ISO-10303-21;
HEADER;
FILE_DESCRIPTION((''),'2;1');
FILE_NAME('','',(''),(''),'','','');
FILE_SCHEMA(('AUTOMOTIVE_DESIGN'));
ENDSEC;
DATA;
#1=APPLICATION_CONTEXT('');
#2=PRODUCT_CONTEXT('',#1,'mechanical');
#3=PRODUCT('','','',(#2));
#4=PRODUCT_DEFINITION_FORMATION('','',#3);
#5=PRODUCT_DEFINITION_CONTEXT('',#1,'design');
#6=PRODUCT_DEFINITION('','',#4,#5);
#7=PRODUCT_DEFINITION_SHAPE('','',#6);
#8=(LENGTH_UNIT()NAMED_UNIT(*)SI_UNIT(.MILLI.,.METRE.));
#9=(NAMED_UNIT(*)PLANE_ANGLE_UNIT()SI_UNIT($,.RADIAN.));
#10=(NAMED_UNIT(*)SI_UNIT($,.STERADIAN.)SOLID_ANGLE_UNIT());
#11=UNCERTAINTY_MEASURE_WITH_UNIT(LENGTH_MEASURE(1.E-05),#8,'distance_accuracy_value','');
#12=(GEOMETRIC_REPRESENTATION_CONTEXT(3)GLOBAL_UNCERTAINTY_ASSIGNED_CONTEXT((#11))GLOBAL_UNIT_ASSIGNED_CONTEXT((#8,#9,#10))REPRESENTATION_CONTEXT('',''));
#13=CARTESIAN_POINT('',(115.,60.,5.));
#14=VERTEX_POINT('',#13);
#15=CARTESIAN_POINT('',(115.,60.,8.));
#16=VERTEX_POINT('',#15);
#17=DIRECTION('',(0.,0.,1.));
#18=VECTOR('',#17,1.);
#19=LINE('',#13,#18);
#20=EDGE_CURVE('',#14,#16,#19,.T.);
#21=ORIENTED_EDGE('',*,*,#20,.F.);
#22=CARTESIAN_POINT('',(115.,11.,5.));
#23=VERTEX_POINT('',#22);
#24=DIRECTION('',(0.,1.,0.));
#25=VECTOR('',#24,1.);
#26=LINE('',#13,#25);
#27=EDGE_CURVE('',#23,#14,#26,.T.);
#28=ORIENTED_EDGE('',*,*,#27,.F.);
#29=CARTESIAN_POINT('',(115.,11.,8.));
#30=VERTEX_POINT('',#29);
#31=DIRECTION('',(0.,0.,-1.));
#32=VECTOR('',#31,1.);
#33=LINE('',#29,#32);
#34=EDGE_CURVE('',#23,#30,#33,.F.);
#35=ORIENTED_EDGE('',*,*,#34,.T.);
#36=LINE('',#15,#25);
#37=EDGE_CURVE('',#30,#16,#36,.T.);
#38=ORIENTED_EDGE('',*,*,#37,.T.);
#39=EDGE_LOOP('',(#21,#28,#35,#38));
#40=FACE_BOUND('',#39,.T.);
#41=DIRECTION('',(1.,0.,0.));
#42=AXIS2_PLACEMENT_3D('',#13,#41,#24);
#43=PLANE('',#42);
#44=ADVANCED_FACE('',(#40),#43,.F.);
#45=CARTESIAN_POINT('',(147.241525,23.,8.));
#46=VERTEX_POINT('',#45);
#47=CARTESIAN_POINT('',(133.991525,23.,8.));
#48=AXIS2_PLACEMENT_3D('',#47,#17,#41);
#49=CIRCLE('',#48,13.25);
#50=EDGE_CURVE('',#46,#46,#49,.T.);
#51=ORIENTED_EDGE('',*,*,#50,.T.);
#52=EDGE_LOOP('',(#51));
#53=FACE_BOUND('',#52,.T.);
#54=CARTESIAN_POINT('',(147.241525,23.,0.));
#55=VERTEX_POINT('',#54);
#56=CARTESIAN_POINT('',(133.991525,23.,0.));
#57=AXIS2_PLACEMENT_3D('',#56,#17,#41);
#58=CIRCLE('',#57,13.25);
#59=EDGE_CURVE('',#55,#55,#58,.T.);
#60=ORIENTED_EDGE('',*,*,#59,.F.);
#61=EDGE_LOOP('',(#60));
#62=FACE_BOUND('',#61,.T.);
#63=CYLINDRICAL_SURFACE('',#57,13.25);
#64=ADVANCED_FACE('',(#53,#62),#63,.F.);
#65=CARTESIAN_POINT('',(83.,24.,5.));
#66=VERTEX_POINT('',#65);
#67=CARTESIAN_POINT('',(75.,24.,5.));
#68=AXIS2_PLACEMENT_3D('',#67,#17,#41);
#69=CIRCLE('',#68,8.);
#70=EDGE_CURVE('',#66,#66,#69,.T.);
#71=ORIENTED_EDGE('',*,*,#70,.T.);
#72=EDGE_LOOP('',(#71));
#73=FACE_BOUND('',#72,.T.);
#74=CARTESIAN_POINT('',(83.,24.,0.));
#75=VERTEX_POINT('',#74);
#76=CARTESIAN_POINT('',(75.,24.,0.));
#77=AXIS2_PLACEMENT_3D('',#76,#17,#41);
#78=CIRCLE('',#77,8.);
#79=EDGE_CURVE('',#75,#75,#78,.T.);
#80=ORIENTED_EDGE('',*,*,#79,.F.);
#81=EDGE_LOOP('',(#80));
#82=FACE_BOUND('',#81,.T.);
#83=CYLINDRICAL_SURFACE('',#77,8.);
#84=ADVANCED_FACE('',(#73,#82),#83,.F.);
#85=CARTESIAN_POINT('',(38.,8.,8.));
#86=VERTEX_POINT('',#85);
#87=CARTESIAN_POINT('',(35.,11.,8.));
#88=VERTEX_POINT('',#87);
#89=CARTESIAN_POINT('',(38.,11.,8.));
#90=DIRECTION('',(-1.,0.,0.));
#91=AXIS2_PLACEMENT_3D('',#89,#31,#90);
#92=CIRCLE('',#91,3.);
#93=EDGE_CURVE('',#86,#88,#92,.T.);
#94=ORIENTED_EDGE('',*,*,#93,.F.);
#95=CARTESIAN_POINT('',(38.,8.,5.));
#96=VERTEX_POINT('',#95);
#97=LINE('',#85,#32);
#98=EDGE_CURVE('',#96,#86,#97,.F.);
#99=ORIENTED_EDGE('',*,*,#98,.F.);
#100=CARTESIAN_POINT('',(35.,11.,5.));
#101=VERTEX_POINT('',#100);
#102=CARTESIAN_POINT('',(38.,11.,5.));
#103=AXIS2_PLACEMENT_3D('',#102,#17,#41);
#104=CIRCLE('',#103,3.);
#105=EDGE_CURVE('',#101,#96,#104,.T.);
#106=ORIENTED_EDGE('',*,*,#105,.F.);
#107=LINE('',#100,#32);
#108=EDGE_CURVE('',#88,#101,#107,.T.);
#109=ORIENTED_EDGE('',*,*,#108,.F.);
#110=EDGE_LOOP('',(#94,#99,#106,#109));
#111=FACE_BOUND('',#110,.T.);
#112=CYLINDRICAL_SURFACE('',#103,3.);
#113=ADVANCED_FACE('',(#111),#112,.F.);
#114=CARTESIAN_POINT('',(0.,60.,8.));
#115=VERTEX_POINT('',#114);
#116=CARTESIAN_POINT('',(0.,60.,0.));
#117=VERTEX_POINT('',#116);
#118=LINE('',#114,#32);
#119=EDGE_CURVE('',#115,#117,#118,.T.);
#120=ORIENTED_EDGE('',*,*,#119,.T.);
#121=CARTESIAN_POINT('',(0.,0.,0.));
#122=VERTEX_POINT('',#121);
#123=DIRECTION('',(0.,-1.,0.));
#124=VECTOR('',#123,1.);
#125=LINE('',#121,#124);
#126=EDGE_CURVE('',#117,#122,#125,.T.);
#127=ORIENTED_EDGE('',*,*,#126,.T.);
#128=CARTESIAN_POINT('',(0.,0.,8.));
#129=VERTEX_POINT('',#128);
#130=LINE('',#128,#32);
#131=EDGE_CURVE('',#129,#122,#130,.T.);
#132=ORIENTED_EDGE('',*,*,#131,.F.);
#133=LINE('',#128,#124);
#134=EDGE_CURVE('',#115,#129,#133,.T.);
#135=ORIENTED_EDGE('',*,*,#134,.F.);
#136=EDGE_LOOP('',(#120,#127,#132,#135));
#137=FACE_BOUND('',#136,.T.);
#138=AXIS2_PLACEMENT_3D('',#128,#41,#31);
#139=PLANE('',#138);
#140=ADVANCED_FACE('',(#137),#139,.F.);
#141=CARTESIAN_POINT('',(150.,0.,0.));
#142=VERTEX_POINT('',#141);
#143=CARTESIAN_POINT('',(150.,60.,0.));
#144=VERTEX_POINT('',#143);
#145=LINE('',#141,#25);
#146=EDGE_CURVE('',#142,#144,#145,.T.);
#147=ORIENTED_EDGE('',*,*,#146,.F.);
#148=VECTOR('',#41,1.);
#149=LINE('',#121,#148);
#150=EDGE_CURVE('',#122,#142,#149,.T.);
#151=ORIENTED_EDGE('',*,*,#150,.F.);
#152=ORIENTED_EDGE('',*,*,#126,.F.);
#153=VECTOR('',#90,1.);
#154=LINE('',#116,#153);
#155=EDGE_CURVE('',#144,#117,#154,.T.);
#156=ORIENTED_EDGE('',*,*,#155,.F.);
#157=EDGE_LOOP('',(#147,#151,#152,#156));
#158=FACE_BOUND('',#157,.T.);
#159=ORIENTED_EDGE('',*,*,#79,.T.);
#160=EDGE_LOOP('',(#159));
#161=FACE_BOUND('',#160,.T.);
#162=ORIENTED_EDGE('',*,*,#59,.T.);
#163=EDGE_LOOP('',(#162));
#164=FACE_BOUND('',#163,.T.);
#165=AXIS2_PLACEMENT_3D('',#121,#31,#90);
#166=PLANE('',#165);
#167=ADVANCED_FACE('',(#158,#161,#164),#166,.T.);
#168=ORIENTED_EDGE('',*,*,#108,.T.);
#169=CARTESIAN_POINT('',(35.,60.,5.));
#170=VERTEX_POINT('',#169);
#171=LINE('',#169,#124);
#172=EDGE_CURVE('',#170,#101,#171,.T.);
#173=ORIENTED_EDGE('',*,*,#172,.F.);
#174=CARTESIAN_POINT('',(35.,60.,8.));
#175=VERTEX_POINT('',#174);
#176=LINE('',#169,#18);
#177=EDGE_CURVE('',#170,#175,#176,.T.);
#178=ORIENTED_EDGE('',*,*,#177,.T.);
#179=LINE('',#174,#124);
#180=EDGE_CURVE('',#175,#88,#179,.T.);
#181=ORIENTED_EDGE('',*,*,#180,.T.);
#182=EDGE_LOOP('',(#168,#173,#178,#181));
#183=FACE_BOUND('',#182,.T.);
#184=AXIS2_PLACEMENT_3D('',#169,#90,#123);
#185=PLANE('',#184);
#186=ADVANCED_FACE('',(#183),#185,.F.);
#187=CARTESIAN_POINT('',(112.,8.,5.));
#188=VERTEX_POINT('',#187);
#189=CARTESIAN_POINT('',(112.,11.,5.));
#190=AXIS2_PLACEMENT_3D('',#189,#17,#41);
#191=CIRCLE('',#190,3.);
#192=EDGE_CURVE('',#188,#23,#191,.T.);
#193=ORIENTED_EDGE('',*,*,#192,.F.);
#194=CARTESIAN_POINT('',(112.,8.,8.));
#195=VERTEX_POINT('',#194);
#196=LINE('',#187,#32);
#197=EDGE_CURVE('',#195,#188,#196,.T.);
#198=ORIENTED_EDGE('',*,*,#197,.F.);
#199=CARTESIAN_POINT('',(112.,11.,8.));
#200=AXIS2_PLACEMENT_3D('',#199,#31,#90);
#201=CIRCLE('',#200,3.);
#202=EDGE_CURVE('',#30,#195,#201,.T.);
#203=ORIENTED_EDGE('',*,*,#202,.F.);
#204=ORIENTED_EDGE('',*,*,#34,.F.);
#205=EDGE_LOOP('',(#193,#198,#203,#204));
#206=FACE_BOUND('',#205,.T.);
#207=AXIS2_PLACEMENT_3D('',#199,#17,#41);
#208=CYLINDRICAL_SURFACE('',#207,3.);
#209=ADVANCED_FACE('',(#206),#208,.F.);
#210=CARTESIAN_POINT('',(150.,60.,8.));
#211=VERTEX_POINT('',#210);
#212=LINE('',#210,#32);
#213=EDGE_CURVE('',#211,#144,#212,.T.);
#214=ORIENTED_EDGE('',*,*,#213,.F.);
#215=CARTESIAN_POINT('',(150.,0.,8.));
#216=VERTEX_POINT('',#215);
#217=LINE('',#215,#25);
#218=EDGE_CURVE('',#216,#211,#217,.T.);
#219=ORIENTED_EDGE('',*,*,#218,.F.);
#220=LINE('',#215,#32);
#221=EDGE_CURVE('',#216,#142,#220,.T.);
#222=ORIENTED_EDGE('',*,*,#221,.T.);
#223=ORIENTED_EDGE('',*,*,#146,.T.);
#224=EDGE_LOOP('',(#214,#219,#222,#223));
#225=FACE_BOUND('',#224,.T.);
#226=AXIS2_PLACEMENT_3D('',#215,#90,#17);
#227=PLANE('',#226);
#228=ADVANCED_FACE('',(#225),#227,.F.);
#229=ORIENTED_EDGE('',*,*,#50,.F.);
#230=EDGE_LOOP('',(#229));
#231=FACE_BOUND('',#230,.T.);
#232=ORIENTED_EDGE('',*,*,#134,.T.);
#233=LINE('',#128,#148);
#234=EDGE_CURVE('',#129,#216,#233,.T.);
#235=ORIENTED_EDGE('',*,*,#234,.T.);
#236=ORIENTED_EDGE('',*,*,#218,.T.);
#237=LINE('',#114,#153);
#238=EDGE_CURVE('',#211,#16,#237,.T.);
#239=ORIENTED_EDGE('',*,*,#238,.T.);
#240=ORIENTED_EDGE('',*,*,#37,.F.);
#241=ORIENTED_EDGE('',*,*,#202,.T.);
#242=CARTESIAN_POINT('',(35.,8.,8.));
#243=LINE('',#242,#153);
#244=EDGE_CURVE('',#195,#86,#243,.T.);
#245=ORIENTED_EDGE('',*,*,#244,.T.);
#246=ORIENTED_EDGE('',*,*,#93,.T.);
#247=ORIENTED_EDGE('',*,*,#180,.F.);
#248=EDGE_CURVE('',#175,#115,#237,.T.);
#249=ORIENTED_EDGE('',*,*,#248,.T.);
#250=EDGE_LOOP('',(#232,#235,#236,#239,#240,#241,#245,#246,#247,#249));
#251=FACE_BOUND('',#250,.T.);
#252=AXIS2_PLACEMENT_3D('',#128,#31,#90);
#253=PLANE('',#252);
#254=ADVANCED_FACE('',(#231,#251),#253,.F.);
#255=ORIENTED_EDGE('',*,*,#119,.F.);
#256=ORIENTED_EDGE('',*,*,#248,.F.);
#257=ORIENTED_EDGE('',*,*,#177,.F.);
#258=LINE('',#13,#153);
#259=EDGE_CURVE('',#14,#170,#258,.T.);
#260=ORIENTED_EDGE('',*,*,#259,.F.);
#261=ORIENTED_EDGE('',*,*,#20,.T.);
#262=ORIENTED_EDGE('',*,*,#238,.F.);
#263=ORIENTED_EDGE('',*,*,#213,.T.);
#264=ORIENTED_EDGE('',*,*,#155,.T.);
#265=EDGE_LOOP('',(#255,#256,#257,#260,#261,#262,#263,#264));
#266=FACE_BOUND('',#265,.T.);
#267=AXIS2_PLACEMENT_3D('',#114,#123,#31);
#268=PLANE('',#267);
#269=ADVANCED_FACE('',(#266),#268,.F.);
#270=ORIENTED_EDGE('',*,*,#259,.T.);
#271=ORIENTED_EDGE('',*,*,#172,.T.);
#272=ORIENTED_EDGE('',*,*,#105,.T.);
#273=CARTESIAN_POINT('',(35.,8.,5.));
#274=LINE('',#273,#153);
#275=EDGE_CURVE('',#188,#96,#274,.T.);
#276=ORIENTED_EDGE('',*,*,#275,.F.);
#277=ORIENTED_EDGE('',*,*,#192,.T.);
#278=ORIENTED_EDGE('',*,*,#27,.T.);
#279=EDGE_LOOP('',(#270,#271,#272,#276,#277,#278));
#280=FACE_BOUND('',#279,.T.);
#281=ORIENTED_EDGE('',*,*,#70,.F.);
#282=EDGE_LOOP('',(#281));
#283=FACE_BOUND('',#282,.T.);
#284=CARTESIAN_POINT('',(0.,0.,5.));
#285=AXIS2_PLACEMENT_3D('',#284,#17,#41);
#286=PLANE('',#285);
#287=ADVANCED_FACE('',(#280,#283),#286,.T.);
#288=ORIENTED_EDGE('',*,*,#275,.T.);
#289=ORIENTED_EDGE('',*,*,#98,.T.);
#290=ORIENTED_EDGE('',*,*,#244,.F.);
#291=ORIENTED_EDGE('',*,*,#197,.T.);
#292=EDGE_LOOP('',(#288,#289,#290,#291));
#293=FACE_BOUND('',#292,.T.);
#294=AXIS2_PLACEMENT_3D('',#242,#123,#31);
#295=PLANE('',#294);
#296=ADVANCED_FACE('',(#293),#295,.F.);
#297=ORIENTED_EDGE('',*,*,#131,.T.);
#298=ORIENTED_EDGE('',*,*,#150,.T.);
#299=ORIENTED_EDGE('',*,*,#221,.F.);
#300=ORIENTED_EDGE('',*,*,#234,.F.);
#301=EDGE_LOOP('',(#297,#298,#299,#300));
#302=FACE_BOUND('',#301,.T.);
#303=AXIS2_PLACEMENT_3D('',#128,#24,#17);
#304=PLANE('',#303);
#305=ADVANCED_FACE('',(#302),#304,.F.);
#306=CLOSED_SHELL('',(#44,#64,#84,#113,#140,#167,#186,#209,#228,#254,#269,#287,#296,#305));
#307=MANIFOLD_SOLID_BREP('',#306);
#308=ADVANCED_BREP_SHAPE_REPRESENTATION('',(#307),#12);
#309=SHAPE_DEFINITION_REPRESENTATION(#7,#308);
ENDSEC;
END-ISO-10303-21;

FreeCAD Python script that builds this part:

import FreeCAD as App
import Part
import Sketcher
from FreeCAD import Vector


def edges_at(feature, points):
    """Names of the edges that pass closest to the given points."""
    edges = feature.Shape.Edges
    near = lambda p: min(range(len(edges)), key=lambda i: edges[i].distToShape(Part.Vertex(*p))[0])
    return sorted({f"Edge{near(p) + 1}" for p in points})

doc = App.newDocument("Part")
body = doc.addObject("PartDesign::Body", "Body")

# Sketch on XY plane
sketch1 = body.newObject("Sketcher::SketchObject", "Sketch")
sketch1.AttachmentSupport = (doc.getObject("XY_Plane"), [""])
sketch1.MapMode = "FlatFace"
sketch1.addGeometry([
    Part.LineSegment(Vector(0, 60, 0), Vector(0, 0, 0)),
    Part.LineSegment(Vector(0, 0, 0), Vector(150, 0, 0)),
    Part.LineSegment(Vector(150, 0, 0), Vector(150, 60, 0)),
    Part.LineSegment(Vector(150, 60, 0), Vector(0, 60, 0)),
], False)
sketch1.addConstraint([
    Sketcher.Constraint("Coincident", 0, 2, 1, 1),
    Sketcher.Constraint("Coincident", 1, 2, 2, 1),
    Sketcher.Constraint("Coincident", 2, 2, 3, 1),
    Sketcher.Constraint("Coincident", 3, 2, 0, 1),
    Sketcher.Constraint("Vertical", 0),
    Sketcher.Constraint("Horizontal", 1),
    Sketcher.Constraint("Vertical", 2),
    Sketcher.Constraint("Horizontal", 3),
    Sketcher.Constraint("Coincident", 0, 2, -1, 1),
    Sketcher.Constraint("DistanceX", 1, 1, 1, 2, 150.0),
    Sketcher.Constraint("DistanceY", 0, 2, 0, 1, 60.0),
])
pad1 = body.newObject("PartDesign::Pad", "Pad")
pad1.Profile = sketch1
pad1.Length = 8

# Sketch on XY plane
sketch2 = body.newObject("Sketcher::SketchObject", "Sketch001")
sketch2.AttachmentSupport = (doc.getObject("XY_Plane"), [""])
sketch2.MapMode = "FlatFace"
sketch2.AttachmentOffset = App.Placement(Vector(0, 0, 8), App.Rotation())
sketch2.addGeometry([
    Part.LineSegment(Vector(35, 60, 0), Vector(35, 0, 0)),
    Part.LineSegment(Vector(35, 0, 0), Vector(115, 0, 0)),
    Part.LineSegment(Vector(115, 0, 0), Vector(115, 60, 0)),
    Part.LineSegment(Vector(115, 60, 0), Vector(35, 60, 0)),
], False)
sketch2.addConstraint([
    Sketcher.Constraint("Coincident", 0, 2, 1, 1),
    Sketcher.Constraint("Coincident", 1, 2, 2, 1),
    Sketcher.Constraint("Coincident", 2, 2, 3, 1),
    Sketcher.Constraint("Coincident", 3, 2, 0, 1),
    Sketcher.Constraint("Vertical", 0),
    Sketcher.Constraint("Horizontal", 1),
    Sketcher.Constraint("Vertical", 2),
    Sketcher.Constraint("Horizontal", 3),
    Sketcher.Constraint("PointOnObject", 0, 2, -1),
    Sketcher.Constraint("DistanceX", 1, 1, 1, 2, 80.0),
    Sketcher.Constraint("DistanceY", 0, 2, 0, 1, 60.0),
    Sketcher.Constraint("DistanceX", -1, 1, 0, 2, 35.0),
])
pocket1 = body.newObject("PartDesign::Pocket", "Pocket")
pocket1.Profile = sketch2
pocket1.Length = 3

# Sketch on XY plane
sketch3 = body.newObject("Sketcher::SketchObject", "Sketch002")
sketch3.AttachmentSupport = (doc.getObject("XY_Plane"), [""])
sketch3.MapMode = "FlatFace"
sketch3.AttachmentOffset = App.Placement(Vector(0, 0, 5), App.Rotation())
sketch3.addGeometry(Part.Circle(Vector(75, 24, 0), Vector(0, 0, 1), 8), False)
sketch3.addConstraint([
    Sketcher.Constraint("Diameter", 0, 16.0),
    Sketcher.Constraint("DistanceX", -1, 1, 0, 3, 75.0),
    Sketcher.Constraint("DistanceY", -1, 1, 0, 3, 24.0),
])
pocket2 = body.newObject("PartDesign::Pocket", "Pocket001")
pocket2.Profile = sketch3
pocket2.Type = "ThroughAll"
pocket2.Midplane = True

# Sketch on XY plane
sketch4 = body.newObject("Sketcher::SketchObject", "Sketch003")
sketch4.AttachmentSupport = (doc.getObject("XY_Plane"), [""])
sketch4.MapMode = "FlatFace"
sketch4.AttachmentOffset = App.Placement(Vector(0, 0, 5), App.Rotation())
sketch4.addGeometry([
    Part.LineSegment(Vector(35, 8, 0), Vector(35, 0, 0)),
    Part.LineSegment(Vector(35, 0, 0), Vector(115, 0, 0)),
    Part.LineSegment(Vector(115, 0, 0), Vector(115, 8, 0)),
    Part.LineSegment(Vector(115, 8, 0), Vector(35, 8, 0)),
], False)
sketch4.addConstraint([
    Sketcher.Constraint("Coincident", 0, 2, 1, 1),
    Sketcher.Constraint("Coincident", 1, 2, 2, 1),
    Sketcher.Constraint("Coincident", 2, 2, 3, 1),
    Sketcher.Constraint("Coincident", 3, 2, 0, 1),
    Sketcher.Constraint("Vertical", 0),
    Sketcher.Constraint("Horizontal", 1),
    Sketcher.Constraint("Vertical", 2),
    Sketcher.Constraint("Horizontal", 3),
    Sketcher.Constraint("PointOnObject", 0, 2, -1),
    Sketcher.Constraint("DistanceX", 1, 1, 1, 2, 80.0),
    Sketcher.Constraint("DistanceY", 0, 2, 0, 1, 8.0),
    Sketcher.Constraint("DistanceX", -1, 1, 0, 2, 35.0),
])
pad2 = body.newObject("PartDesign::Pad", "Pad001")
pad2.Profile = sketch4
pad2.Length = 3
doc.recompute()

fillet = body.newObject("PartDesign::Fillet", "Fillet")
fillet.Base = (pad2, edges_at(pad2, [(35, 8, 6.5), (115, 8, 6.5)]))
fillet.Radius = 3

# Sketch on XY plane
sketch5 = body.newObject("Sketcher::SketchObject", "Sketch004")
sketch5.AttachmentSupport = (doc.getObject("XY_Plane"), [""])
sketch5.MapMode = "FlatFace"
sketch5.AttachmentOffset = App.Placement(Vector(0, 0, 8), App.Rotation())
sketch5.addGeometry(Part.Circle(Vector(133.991525, 23, 0), Vector(0, 0, 1), 13.25), False)
sketch5.addConstraint([
    Sketcher.Constraint("Diameter", 0, 26.5),
    Sketcher.Constraint("DistanceY", -1, 1, 0, 3, 23.0),
    Sketcher.Constraint("DistanceX", -1, 1, 0, 3, 133.991525),
])
pocket3 = body.newObject("PartDesign::Pocket", "Pocket002")
pocket3.Profile = sketch5
pocket3.Type = "ThroughAll"

doc.recompute()
